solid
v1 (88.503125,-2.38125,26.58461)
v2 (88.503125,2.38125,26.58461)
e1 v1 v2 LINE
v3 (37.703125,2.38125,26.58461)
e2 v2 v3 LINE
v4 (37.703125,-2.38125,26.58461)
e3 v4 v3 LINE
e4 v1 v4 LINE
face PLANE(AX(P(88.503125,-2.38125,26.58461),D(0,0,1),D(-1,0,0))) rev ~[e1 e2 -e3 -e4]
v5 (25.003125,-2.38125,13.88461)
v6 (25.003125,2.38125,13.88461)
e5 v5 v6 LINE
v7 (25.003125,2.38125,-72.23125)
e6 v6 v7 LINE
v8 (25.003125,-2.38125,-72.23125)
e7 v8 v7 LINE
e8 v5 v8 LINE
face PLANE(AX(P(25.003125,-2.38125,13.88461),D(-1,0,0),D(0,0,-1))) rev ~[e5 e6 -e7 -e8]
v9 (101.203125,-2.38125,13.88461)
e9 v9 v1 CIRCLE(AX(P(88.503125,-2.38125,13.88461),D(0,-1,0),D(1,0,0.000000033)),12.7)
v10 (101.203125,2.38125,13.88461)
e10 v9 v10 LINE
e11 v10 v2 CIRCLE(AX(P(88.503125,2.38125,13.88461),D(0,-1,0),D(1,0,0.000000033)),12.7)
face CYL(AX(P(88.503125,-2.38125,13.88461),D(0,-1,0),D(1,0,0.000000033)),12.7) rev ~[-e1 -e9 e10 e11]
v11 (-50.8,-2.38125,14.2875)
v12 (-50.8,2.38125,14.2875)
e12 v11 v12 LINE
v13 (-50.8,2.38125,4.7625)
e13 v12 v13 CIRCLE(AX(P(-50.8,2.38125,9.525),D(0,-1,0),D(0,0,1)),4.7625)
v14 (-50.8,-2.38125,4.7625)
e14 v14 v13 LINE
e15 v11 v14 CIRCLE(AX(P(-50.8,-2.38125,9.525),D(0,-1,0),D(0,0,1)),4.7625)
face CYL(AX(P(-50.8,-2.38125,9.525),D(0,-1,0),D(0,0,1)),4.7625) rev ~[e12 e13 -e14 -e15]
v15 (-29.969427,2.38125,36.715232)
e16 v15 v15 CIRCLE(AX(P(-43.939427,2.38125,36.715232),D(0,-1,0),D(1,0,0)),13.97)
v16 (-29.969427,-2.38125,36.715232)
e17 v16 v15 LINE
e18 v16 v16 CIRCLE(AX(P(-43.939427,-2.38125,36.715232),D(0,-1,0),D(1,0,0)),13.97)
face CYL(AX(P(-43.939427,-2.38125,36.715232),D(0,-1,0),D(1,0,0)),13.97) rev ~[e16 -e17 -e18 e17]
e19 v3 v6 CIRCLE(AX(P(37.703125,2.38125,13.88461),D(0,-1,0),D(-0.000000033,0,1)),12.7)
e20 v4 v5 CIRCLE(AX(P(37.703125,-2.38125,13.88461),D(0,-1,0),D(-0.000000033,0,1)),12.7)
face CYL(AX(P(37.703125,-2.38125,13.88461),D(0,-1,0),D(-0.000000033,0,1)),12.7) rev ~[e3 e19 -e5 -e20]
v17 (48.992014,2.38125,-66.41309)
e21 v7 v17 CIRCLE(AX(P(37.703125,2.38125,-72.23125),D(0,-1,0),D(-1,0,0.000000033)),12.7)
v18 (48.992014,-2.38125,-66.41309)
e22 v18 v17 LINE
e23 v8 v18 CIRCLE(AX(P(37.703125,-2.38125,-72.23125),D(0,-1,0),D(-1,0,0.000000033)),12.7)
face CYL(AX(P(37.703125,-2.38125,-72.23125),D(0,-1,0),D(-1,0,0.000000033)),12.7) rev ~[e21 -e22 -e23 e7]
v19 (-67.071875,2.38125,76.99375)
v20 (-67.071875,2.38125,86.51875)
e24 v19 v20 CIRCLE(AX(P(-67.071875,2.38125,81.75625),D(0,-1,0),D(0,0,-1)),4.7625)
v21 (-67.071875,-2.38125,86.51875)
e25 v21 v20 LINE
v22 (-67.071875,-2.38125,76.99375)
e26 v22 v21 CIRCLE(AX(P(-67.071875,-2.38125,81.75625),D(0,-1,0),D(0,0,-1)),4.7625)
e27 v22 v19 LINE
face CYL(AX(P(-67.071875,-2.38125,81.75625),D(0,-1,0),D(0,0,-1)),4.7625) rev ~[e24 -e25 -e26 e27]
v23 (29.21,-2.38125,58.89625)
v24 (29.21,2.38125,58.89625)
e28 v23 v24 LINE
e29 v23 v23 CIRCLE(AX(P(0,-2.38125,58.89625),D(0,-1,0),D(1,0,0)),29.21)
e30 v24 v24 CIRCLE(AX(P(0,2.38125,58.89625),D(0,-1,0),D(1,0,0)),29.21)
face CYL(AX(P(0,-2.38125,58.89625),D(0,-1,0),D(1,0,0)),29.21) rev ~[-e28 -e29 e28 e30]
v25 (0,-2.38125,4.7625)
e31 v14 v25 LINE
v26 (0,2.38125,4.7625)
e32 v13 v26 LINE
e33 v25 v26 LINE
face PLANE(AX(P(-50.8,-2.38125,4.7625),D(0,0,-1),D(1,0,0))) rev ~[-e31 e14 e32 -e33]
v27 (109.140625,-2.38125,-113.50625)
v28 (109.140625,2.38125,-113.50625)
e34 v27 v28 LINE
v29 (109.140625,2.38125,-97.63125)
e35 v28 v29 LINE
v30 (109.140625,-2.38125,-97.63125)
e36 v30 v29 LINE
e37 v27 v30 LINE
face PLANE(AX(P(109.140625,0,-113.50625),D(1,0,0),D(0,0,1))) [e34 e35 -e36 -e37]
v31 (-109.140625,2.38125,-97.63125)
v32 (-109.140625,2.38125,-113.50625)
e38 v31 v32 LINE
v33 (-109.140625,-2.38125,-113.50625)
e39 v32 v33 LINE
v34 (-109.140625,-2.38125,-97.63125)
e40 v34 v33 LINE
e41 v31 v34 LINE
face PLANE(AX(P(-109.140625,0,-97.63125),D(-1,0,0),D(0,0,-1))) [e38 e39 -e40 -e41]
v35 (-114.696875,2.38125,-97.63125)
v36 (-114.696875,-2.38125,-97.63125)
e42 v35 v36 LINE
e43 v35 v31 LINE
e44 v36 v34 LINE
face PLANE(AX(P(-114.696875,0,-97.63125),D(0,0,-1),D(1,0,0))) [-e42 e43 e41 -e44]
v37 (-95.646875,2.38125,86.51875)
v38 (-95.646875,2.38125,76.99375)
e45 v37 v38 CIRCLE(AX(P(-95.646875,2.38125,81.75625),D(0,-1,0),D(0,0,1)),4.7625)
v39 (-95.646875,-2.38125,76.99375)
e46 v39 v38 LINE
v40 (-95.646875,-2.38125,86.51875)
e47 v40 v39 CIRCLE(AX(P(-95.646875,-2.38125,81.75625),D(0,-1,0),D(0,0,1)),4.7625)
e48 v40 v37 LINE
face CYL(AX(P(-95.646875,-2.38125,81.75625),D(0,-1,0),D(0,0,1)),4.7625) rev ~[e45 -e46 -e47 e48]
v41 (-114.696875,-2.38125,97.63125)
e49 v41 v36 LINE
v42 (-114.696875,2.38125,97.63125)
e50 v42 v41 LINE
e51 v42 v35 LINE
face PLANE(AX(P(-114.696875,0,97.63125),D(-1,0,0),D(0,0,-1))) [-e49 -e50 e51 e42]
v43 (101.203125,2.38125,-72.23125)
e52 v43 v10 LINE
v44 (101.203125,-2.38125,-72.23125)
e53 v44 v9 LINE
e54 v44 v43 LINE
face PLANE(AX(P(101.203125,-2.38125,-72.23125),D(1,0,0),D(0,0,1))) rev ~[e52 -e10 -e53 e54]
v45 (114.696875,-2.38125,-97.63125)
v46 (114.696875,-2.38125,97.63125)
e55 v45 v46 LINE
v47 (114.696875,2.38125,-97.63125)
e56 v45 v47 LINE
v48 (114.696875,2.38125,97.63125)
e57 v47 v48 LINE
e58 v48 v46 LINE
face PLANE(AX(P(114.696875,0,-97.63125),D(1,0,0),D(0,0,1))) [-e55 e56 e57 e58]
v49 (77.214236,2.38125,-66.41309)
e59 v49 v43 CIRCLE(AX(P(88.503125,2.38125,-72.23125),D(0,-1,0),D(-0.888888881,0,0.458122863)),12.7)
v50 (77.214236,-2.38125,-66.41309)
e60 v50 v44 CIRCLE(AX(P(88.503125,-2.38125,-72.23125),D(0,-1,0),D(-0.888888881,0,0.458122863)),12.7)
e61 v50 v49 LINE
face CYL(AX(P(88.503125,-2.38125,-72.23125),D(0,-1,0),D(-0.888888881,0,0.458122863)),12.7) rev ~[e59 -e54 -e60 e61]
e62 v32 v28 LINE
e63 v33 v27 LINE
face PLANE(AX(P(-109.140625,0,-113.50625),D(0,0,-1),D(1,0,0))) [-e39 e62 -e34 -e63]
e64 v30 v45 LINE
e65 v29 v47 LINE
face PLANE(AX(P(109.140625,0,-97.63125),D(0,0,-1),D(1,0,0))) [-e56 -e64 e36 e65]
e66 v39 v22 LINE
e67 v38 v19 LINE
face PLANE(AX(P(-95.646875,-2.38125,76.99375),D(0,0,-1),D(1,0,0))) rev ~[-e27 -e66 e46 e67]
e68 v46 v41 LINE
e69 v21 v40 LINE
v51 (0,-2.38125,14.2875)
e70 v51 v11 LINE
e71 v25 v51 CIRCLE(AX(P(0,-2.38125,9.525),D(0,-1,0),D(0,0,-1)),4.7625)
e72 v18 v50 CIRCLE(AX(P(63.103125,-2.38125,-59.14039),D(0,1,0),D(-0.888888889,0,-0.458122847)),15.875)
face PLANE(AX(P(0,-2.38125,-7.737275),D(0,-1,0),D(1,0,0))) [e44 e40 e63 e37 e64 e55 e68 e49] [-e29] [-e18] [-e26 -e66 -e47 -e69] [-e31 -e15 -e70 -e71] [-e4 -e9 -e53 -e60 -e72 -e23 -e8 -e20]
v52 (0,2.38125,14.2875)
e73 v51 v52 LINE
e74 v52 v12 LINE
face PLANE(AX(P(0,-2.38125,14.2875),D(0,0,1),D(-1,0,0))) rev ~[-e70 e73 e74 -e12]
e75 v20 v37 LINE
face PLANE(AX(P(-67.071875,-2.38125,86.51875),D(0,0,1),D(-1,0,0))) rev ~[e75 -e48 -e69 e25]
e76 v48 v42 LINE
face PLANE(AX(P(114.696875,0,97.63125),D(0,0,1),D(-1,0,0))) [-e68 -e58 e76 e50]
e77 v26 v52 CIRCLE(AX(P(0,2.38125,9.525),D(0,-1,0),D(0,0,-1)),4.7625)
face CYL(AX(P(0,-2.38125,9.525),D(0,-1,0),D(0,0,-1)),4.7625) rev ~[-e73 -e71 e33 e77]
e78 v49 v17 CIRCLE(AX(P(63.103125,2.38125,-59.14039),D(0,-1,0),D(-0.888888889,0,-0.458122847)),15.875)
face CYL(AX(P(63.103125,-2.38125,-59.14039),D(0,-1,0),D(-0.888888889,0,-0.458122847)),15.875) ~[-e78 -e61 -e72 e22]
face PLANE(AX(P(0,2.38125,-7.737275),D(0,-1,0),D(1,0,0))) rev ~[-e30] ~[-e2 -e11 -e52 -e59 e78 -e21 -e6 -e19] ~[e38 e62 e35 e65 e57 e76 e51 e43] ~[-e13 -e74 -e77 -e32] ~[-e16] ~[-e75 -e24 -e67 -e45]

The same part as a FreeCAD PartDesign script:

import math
import FreeCAD as App
import Part
import Sketcher

V = App.Vector
Q = App.Units.Quantity


def add_polygon(sketch, points):
    """Adds a closed chain of lines whose ends are joined by coincident constraints."""
    first, n = sketch.GeometryCount, len(points)
    for a, b in zip(points, points[1:] + points[:1]):
        sketch.addGeometry(Part.LineSegment(App.Vector(*a, 0), App.Vector(*b, 0)), False)
    for i in range(n):
        sketch.addConstraint(Sketcher.Constraint("Coincident", first + i, 2, first + (i + 1) % n, 1))

doc = App.newDocument("Part")
body = doc.addObject("PartDesign::Body", "Body")

sketch1 = body.newObject("Sketcher::SketchObject", "Sketch")
sketch1.AttachmentSupport = (doc.getObject("XZ_Plane"), [""])
sketch1.MapMode = "FlatFace"
add_polygon(sketch1, [(115, -98), (115, 98), (-115, 98), (-115, -98), (-109, -98), (-109, -114), (109, -114), (109, -98)])
sketch1.addConstraint(Sketcher.Constraint("Vertical", 0))
sketch1.addConstraint(Sketcher.Constraint("Horizontal", 1))
sketch1.addConstraint(Sketcher.Constraint("Vertical", 2))
sketch1.addConstraint(Sketcher.Constraint("Horizontal", 3))
sketch1.addConstraint(Sketcher.Constraint("Vertical", 4))
sketch1.addConstraint(Sketcher.Constraint("Horizontal", 5))
sketch1.addConstraint(Sketcher.Constraint("Vertical", 6))
sketch1.addConstraint(Sketcher.Constraint("Horizontal", 7))
sketch1.addConstraint(Sketcher.Constraint("Symmetric", 0, 2, 2, 2, -1, 1))
sketch1.addConstraint(Sketcher.Constraint("Symmetric", 3, 2, 6, 2, -2))
sketch1.addConstraint(Sketcher.Constraint("DistanceX", 1, 2, 1, 1, Q("9.03125 in")))
sketch1.addConstraint(Sketcher.Constraint("DistanceX", 3, 1, 3, 2, Q("0.21875 in")))
sketch1.addConstraint(Sketcher.Constraint("DistanceY", 0, 1, 0, 2, Q("7.6875 in")))
sketch1.addConstraint(Sketcher.Constraint("DistanceY", 4, 2, 4, 1, Q("0.625 in")))
pad1 = body.newObject("PartDesign::Pad", "Pad")
pad1.Profile = sketch1
pad1.Length = Q("0.1875 in")
pad1.Midplane = True

sketch2 = body.newObject("Sketcher::SketchObject", "Sketch001")
sketch2.AttachmentSupport = (doc.getObject("XZ_Plane"), [""])
sketch2.MapMode = "FlatFace"
sketch2.AttachmentOffset = App.Placement(V(0, 0, 0.09375 * 25.4), App.Rotation())
sketch2.addGeometry(Part.LineSegment(V(25, 14, 0), V(25, -72, 0)), False)
sketch2.addGeometry(Part.ArcOfCircle(Part.Circle(V(38, -72, 0), V(0, 0, 1), 13), math.radians(180), math.radians(387)), False)
sketch2.addGeometry(Part.ArcOfCircle(Part.Circle(V(63, -59, 0), V(0, 0, 1), 16), math.radians(-27), math.radians(207)), False)
sketch2.addGeometry(Part.ArcOfCircle(Part.Circle(V(89, -72, 0), V(0, 0, 1), 13), math.radians(153), math.radians(360)), False)
sketch2.addGeometry(Part.LineSegment(V(101, -72, 0), V(101, 14, 0)), False)
sketch2.addGeometry(Part.ArcOfCircle(Part.Circle(V(89, 14, 0), V(0, 0, 1), 13), math.radians(0), math.radians(90)), False)
sketch2.addGeometry(Part.LineSegment(V(89, 27, 0), V(38, 27, 0)), False)
sketch2.addGeometry(Part.ArcOfCircle(Part.Circle(V(38, 14, 0), V(0, 0, 1), 13), math.radians(90), math.radians(180)), False)
sketch2.addConstraint(Sketcher.Constraint("Tangent", 0, 2, 1, 1))
sketch2.addConstraint(Sketcher.Constraint("Tangent", 1, 2, 2, 2))
sketch2.addConstraint(Sketcher.Constraint("Tangent", 2, 1, 3, 1))
sketch2.addConstraint(Sketcher.Constraint("Tangent", 3, 2, 4, 1))
sketch2.addConstraint(Sketcher.Constraint("Tangent", 4, 2, 5, 1))
sketch2.addConstraint(Sketcher.Constraint("Tangent", 5, 2, 6, 1))
sketch2.addConstraint(Sketcher.Constraint("Tangent", 6, 2, 7, 1))
sketch2.addConstraint(Sketcher.Constraint("Tangent", 7, 2, 0, 1))
sketch2.addConstraint(Sketcher.Constraint("Vertical", 0))
sketch2.addConstraint(Sketcher.Constraint("Vertical", 4))
sketch2.addConstraint(Sketcher.Constraint("Horizontal", 6))
sketch2.addConstraint(Sketcher.Constraint("Equal", 1, 3))
sketch2.addConstraint(Sketcher.Constraint("Equal", 3, 5))
sketch2.addConstraint(Sketcher.Constraint("Equal", 5, 7))
sketch2.addConstraint(Sketcher.Constraint("Horizontal", 1, 3, 3, 3))
sketch2.addConstraint(Sketcher.Constraint("Radius", 1, Q("0.5 in")))
sketch2.addConstraint(Sketcher.Constraint("DistanceX", 6, 2, 6, 1, Q("2 in")))
sketch2.addConstraint(Sketcher.Constraint("Radius", 2, Q("0.625 in")))
sketch2.addConstraint(Sketcher.Constraint("DistanceX", -1, 1, 1, 3, Q("1.484375 in")))
sketch2.addConstraint(Sketcher.Constraint("DistanceY", 1, 3, -1, 1, Q("2.84375 in")))
sketch2.addConstraint(Sketcher.Constraint("DistanceY", 2, 3, 5, 3, Q("2.875 in")))
pocket1 = body.newObject("PartDesign::Pocket", "Pocket")
pocket1.Profile = sketch2
pocket1.Type = "ThroughAll"

sketch3 = body.newObject("Sketcher::SketchObject", "Sketch002")
sketch3.AttachmentSupport = (doc.getObject("XZ_Plane"), [""])
sketch3.MapMode = "FlatFace"
sketch3.AttachmentOffset = App.Placement(V(0, 0, 0.09375 * 25.4), App.Rotation())
sketch3.addGeometry(Part.Circle(V(0, 59, 0), V(0, 0, 1), 29), False)
sketch3.addConstraint(Sketcher.Constraint("PointOnObject", 0, 3, -2))
sketch3.addConstraint(Sketcher.Constraint("Diameter", 0, Q("2.3 in")))
sketch3.addConstraint(Sketcher.Constraint("DistanceY", -1, 1, 0, 3, Q("58.89625 mm")))
pocket2 = body.newObject("PartDesign::Pocket", "Pocket001")
pocket2.Profile = sketch3
pocket2.Type = "ThroughAll"

sketch4 = body.newObject("Sketcher::SketchObject", "Sketch003")
sketch4.AttachmentSupport = (doc.getObject("XZ_Plane"), [""])
sketch4.MapMode = "FlatFace"
sketch4.AttachmentOffset = App.Placement(V(0, 0, 0.09375 * 25.4), App.Rotation())
sketch4.addGeometry(Part.ArcOfCircle(Part.Circle(V(-50.8, 9.5, 0), V(0, 0, 1), 4.8), math.radians(90), math.radians(270)), False)
sketch4.addGeometry(Part.LineSegment(V(-50.8, 4.8, 0), V(0, 4.8, 0)), False)
sketch4.addGeometry(Part.ArcOfCircle(Part.Circle(V(0, 9.5, 0), V(0, 0, 1), 4.8), math.radians(-90), math.radians(90)), False)
sketch4.addGeometry(Part.LineSegment(V(0, 14.3, 0), V(-50.8, 14.3, 0)), False)
sketch4.addGeometry(Part.LineSegment(V(-67.1, 86.5, 0), V(-95.6, 86.5, 0)), False)
sketch4.addGeometry(Part.ArcOfCircle(Part.Circle(V(-95.6, 81.8, 0), V(0, 0, 1), 4.8), math.radians(90), math.radians(270)), False)
sketch4.addGeometry(Part.LineSegment(V(-95.6, 77, 0), V(-67.1, 77, 0)), False)
sketch4.addGeometry(Part.ArcOfCircle(Part.Circle(V(-67.1, 81.8, 0), V(0, 0, 1), 4.8), math.radians(-90), math.radians(90)), False)
sketch4.addConstraint(Sketcher.Constraint("Tangent", 0, 2, 1, 1))
sketch4.addConstraint(Sketcher.Constraint("Tangent", 1, 2, 2, 1))
sketch4.addConstraint(Sketcher.Constraint("Tangent", 2, 2, 3, 1))
sketch4.addConstraint(Sketcher.Constraint("Tangent", 3, 2, 0, 1))
sketch4.addConstraint(Sketcher.Constraint("Tangent", 4, 2, 5, 1))
sketch4.addConstraint(Sketcher.Constraint("Tangent", 5, 2, 6, 1))
sketch4.addConstraint(Sketcher.Constraint("Tangent", 6, 2, 7, 1))
sketch4.addConstraint(Sketcher.Constraint("Tangent", 7, 2, 4, 1))
sketch4.addConstraint(Sketcher.Constraint("Horizontal", 1))
sketch4.addConstraint(Sketcher.Constraint("Horizontal", 3))
sketch4.addConstraint(Sketcher.Constraint("Horizontal", 4))
sketch4.addConstraint(Sketcher.Constraint("Horizontal", 6))
sketch4.addConstraint(Sketcher.Constraint("Equal", 2, 5))
sketch4.addConstraint(Sketcher.Constraint("PointOnObject", 2, 3, -2))
sketch4.addConstraint(Sketcher.Constraint("DistanceX", 1, 1, 1, 2, Q("2 in")))
sketch4.addConstraint(Sketcher.Constraint("Radius", 0, Q("0.1875 in")))
sketch4.addConstraint(Sketcher.Constraint("DistanceX", 4, 2, 4, 1, Q("1.125 in")))
sketch4.addConstraint(Sketcher.Constraint("DistanceY", -1, 1, 0, 3, Q("0.375 in")))
sketch4.addConstraint(Sketcher.Constraint("DistanceX", 5, 3, -1, 1, Q("3.765625 in")))
sketch4.addConstraint(Sketcher.Constraint("DistanceY", -1, 1, 5, 3, Q("3.21875 in")))
pocket3 = body.newObject("PartDesign::Pocket", "Pocket002")
pocket3.Profile = sketch4
pocket3.Type = "ThroughAll"

sketch5 = body.newObject("Sketcher::SketchObject", "Sketch004")
sketch5.AttachmentSupport = (doc.getObject("XZ_Plane"), [""])
sketch5.MapMode = "FlatFace"
sketch5.AttachmentOffset = App.Placement(V(0, 0, 0.09375 * 25.4), App.Rotation())
sketch5.addGeometry(Part.Circle(V(-44, 37, 0), V(0, 0, 1), 14), False)
sketch5.addConstraint(Sketcher.Constraint("Diameter", 0, Q("1.1 in")))
sketch5.addConstraint(Sketcher.Constraint("DistanceX", 0, 3, -1, 1, Q("43.939427 mm")))
sketch5.addConstraint(Sketcher.Constraint("DistanceY", -1, 1, 0, 3, Q("36.715232 mm")))
pocket4 = body.newObject("PartDesign::Pocket", "Pocket003")
pocket4.Profile = sketch5
pocket4.Type = "ThroughAll"

doc.recompute()
